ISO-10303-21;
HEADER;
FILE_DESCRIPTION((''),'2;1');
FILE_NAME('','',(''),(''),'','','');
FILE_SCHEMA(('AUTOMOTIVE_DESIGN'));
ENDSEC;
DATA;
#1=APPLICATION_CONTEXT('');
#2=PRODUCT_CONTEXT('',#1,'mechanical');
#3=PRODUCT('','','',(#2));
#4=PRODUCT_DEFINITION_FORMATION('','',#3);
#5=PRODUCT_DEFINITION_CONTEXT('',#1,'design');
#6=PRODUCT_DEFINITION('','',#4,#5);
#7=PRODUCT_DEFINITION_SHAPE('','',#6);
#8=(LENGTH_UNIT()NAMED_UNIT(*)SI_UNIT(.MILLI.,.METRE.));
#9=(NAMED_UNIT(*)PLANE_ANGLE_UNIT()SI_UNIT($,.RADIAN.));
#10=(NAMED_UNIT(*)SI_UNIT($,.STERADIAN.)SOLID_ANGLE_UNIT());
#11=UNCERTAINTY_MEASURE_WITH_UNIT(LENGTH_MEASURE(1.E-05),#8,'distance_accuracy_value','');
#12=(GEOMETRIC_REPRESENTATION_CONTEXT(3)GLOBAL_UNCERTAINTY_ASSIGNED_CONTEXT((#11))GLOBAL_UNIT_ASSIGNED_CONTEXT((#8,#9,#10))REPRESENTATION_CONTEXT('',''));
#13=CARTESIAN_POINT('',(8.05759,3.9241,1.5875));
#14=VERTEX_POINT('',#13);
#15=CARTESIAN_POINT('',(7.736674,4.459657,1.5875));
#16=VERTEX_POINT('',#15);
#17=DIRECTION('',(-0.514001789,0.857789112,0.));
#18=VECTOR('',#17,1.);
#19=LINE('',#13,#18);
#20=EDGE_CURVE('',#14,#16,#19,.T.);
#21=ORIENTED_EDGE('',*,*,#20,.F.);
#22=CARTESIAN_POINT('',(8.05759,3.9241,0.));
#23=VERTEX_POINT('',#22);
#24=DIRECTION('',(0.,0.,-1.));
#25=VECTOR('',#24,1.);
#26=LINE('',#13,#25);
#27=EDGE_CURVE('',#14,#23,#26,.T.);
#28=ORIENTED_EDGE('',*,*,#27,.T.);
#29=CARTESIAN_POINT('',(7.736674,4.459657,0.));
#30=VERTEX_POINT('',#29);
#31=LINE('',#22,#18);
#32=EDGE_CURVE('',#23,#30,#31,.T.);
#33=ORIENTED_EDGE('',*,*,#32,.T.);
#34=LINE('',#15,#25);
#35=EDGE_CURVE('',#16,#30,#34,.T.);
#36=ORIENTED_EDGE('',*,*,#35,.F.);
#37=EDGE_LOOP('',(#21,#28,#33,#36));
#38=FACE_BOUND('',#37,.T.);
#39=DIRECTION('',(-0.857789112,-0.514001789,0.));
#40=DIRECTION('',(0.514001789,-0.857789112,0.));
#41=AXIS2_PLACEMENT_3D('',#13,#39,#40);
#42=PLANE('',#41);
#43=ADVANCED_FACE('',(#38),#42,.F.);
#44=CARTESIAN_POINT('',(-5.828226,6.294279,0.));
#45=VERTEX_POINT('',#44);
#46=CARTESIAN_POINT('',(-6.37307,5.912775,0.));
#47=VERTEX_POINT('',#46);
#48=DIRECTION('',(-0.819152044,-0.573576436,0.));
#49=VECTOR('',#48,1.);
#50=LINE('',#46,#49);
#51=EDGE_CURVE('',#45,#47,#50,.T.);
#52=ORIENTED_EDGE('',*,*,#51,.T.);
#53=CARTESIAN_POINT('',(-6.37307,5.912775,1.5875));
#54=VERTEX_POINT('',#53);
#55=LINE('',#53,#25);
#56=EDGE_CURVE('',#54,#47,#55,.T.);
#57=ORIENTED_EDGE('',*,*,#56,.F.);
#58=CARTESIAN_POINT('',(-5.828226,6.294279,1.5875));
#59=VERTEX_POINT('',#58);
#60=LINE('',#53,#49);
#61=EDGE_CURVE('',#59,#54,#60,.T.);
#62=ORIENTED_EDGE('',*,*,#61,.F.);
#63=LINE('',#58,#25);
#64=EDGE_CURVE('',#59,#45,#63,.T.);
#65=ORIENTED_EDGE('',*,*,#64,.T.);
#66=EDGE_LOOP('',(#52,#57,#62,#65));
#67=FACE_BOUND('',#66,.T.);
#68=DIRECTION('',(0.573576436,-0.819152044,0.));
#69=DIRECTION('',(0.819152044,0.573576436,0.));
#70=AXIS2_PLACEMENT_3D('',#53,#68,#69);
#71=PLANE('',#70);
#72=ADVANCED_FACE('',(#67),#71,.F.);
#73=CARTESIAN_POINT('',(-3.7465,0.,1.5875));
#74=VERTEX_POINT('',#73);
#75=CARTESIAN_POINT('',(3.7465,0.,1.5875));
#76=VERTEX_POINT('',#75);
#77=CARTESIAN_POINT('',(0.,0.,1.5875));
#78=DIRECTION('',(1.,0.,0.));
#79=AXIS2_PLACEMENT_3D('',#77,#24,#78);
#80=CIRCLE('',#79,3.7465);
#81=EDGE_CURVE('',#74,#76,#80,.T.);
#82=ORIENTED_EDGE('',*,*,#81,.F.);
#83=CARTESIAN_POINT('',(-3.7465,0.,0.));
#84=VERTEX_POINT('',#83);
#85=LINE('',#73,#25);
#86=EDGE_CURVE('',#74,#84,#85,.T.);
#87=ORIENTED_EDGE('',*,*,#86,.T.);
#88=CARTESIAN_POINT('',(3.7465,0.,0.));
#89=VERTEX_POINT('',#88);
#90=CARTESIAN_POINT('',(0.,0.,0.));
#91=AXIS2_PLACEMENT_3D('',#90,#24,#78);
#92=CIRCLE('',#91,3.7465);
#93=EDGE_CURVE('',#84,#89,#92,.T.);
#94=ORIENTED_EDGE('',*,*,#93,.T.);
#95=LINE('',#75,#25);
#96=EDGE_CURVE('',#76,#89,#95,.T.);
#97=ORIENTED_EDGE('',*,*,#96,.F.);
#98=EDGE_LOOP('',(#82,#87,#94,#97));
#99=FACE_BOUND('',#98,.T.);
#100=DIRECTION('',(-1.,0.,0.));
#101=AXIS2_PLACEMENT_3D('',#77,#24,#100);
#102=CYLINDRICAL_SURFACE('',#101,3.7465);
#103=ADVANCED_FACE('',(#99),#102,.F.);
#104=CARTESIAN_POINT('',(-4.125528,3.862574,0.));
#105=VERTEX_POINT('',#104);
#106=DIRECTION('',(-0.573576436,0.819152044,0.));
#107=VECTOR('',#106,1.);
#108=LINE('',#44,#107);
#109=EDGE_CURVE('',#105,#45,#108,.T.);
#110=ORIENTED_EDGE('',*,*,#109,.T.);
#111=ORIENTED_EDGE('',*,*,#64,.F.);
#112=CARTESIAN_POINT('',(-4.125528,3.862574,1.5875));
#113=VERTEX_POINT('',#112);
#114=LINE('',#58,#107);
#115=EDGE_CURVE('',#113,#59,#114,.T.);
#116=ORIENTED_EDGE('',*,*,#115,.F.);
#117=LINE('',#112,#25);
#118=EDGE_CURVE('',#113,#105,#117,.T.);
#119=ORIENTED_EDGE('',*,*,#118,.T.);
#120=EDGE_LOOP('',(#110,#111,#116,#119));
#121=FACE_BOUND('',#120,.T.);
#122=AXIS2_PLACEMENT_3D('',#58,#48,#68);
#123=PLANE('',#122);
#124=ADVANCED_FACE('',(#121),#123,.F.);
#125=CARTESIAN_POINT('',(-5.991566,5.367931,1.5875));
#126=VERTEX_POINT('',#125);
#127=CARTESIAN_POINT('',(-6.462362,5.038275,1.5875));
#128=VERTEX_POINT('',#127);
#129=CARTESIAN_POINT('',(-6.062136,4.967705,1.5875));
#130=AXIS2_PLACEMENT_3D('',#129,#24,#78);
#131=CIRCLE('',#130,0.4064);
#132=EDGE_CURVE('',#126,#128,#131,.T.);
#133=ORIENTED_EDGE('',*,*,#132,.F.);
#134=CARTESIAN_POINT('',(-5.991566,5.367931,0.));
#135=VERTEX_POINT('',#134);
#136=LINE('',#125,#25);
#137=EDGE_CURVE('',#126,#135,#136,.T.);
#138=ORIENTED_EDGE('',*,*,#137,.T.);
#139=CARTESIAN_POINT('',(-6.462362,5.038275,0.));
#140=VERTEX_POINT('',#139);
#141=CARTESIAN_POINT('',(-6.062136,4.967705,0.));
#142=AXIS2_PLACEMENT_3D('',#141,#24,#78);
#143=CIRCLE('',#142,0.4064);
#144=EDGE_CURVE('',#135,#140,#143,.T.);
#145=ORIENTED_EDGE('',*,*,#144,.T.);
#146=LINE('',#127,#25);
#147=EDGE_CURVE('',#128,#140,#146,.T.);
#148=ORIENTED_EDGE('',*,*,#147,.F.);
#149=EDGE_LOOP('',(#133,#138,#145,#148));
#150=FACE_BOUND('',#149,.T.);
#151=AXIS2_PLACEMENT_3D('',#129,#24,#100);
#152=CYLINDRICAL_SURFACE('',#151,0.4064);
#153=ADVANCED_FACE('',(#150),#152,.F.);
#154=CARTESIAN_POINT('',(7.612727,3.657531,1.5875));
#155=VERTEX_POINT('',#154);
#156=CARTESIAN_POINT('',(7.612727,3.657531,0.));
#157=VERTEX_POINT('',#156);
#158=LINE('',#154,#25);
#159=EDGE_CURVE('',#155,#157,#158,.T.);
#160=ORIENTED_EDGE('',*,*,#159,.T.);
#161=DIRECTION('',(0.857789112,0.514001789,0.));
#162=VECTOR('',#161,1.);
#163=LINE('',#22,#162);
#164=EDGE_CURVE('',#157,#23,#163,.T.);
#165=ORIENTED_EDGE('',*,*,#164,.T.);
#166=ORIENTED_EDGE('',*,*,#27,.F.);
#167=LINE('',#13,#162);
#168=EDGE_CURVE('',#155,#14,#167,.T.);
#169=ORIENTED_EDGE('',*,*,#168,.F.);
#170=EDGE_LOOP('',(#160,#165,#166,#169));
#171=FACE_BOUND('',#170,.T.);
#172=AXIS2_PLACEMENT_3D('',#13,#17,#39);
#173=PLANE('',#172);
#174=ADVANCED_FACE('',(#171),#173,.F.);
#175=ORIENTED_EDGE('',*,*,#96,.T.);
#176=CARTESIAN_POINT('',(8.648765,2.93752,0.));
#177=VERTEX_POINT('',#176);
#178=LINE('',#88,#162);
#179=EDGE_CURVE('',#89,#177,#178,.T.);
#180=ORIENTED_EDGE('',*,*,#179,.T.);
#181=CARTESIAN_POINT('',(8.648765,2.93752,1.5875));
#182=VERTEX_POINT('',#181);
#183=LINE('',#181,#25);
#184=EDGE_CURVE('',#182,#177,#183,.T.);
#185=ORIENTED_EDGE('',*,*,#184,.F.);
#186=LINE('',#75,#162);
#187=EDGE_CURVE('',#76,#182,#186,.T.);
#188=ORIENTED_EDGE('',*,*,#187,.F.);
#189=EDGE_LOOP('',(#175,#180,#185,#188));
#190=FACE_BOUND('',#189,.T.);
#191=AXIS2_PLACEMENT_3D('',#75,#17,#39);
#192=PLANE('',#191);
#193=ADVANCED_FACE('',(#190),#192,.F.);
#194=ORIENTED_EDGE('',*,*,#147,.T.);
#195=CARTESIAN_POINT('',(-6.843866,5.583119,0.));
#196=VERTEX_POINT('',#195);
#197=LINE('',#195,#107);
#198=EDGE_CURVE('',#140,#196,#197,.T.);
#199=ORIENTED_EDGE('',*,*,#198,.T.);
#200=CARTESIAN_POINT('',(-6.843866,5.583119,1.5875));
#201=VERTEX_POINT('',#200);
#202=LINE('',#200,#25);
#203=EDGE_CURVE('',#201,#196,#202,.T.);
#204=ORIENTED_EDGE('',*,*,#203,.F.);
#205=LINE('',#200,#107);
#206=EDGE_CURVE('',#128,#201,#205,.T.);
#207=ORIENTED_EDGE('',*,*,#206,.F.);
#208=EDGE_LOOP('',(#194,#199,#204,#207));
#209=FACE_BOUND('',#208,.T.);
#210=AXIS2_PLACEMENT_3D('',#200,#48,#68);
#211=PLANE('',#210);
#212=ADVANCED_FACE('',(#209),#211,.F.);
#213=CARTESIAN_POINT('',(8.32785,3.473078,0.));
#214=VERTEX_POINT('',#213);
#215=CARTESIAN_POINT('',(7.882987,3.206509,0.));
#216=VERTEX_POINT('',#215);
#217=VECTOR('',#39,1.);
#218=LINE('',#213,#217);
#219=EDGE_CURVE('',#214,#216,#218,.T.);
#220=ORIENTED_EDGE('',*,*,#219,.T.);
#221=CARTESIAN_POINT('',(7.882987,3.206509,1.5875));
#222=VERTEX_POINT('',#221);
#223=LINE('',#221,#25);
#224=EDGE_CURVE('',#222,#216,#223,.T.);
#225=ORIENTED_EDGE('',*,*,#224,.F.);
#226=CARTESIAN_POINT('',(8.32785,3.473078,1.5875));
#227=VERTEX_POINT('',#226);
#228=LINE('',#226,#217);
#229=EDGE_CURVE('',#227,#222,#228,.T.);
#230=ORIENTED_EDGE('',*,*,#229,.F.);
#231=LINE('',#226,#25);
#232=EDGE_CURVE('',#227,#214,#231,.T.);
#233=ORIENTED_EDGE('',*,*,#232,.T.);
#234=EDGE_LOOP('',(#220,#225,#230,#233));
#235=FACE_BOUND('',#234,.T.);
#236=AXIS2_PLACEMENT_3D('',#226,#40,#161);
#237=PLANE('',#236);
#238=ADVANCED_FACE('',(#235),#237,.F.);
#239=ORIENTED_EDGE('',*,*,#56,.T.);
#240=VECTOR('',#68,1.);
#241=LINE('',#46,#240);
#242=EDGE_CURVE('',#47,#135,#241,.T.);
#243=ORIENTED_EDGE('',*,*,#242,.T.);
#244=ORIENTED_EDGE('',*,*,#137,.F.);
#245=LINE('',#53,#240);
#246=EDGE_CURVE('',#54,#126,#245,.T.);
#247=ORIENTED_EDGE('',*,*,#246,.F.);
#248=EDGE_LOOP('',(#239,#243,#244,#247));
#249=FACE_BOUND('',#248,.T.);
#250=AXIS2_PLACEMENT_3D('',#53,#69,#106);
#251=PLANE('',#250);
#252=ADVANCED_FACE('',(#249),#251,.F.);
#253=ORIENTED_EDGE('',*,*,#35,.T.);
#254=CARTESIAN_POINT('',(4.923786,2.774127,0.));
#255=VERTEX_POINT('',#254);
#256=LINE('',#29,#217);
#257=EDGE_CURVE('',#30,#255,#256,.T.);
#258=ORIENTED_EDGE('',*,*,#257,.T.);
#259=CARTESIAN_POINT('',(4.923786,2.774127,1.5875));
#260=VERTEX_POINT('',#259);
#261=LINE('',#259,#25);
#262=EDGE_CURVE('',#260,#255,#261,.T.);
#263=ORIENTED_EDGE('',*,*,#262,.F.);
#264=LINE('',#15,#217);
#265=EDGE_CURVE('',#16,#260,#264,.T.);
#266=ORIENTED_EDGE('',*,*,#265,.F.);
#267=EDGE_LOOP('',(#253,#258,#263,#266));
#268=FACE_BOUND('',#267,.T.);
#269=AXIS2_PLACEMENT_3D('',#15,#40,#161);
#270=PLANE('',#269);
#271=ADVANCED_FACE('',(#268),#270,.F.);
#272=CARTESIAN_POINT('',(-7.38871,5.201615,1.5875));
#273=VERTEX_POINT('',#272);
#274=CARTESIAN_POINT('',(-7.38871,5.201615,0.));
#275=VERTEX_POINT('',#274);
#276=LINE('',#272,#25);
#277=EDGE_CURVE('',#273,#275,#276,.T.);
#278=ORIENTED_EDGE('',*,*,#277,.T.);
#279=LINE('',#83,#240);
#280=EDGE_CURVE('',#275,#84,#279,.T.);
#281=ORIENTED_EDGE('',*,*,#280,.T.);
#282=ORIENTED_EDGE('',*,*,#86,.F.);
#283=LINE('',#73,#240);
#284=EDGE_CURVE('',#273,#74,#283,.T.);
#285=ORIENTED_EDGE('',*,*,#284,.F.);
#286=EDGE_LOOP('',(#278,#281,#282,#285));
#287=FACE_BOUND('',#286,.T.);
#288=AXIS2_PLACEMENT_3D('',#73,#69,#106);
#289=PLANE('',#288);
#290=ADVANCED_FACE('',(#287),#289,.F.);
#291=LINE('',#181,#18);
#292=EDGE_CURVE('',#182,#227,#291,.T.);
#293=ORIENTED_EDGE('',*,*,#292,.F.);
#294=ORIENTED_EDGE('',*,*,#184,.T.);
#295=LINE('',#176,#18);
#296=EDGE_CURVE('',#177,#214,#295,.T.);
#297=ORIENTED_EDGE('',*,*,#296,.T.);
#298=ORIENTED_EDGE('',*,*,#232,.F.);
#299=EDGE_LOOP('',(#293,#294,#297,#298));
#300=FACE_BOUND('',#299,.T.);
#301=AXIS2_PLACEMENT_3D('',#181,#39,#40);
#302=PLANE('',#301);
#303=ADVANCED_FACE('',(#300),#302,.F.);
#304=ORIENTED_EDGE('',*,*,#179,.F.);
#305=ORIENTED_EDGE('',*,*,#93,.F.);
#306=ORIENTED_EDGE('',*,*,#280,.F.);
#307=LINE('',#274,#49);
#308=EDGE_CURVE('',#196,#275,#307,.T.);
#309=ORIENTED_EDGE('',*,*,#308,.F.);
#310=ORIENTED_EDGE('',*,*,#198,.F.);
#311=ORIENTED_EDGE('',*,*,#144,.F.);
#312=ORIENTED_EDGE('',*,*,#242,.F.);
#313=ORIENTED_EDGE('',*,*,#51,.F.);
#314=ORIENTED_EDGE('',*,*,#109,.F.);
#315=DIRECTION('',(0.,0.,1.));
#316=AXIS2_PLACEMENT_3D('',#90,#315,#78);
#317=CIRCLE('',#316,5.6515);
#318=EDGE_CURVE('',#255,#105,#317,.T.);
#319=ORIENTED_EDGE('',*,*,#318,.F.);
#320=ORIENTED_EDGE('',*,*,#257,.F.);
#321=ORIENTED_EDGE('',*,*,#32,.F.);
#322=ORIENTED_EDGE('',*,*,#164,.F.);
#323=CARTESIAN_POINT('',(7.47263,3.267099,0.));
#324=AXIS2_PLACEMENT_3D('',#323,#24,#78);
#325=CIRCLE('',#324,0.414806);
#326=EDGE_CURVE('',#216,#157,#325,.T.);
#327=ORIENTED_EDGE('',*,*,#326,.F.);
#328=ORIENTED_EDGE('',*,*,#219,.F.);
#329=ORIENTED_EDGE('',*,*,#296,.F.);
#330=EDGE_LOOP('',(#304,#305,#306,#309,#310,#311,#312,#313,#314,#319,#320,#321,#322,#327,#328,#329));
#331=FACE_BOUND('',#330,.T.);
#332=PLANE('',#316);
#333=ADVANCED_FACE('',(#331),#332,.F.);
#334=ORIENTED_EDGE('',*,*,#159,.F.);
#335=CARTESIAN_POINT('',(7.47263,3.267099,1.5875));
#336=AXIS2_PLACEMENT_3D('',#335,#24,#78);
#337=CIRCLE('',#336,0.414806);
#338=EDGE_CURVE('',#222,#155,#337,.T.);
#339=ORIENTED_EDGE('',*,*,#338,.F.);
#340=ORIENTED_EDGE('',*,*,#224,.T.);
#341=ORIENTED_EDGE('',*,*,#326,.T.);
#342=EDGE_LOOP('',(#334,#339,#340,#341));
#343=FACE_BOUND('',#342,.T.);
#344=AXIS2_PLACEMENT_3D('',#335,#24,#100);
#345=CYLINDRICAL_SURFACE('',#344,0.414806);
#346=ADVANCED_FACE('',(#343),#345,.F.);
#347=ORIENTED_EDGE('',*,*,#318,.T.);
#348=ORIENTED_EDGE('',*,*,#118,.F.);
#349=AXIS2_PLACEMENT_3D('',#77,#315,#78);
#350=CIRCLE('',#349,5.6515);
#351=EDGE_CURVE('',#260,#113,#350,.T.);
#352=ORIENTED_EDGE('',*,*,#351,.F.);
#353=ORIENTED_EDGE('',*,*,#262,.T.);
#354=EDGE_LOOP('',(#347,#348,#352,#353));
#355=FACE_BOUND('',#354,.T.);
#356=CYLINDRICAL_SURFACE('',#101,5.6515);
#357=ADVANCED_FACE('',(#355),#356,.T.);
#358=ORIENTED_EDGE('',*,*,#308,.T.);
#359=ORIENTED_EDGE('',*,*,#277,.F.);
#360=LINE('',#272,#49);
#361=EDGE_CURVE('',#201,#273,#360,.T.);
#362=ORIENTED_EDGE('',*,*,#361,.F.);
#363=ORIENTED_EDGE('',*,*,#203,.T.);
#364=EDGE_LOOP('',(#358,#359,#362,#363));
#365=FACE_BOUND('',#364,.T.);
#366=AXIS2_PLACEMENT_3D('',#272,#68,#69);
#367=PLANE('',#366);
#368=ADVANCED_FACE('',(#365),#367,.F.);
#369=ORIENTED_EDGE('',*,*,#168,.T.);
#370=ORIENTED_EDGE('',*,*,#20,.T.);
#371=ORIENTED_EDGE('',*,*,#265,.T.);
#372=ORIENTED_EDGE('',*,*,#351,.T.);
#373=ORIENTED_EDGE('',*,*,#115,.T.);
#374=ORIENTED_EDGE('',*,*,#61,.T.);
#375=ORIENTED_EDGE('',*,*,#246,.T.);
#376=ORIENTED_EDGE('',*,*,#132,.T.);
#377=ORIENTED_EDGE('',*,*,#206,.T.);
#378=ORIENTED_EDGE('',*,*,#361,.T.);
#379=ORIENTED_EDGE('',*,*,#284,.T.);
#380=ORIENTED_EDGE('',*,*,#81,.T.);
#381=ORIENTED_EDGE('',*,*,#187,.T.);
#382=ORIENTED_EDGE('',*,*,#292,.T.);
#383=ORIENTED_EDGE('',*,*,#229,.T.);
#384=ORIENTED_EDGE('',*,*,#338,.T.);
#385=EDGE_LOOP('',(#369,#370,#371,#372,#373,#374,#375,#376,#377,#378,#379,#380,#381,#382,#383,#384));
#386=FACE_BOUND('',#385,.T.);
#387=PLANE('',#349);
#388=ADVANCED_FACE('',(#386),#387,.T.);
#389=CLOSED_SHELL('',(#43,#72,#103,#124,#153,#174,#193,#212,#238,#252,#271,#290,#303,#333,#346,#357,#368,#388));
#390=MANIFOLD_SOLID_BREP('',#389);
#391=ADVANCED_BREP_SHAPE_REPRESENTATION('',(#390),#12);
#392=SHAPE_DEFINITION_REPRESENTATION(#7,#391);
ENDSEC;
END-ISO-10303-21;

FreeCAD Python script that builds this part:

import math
import FreeCAD as App
import Part
import Sketcher
from FreeCAD import Vector
Q = App.Units.Quantity

doc = App.newDocument("Part")
body = doc.addObject("PartDesign::Body", "Body")

# Sketch on XY plane
sketch1 = body.newObject("Sketcher::SketchObject", "Sketch")
sketch1.AttachmentSupport = (doc.getObject("XY_Plane"), [""])
sketch1.MapMode = "FlatFace"
sketch1.addGeometry([
    Part.LineSegment(Vector(-7.39, 5.2, 0), Vector(-3.75, 0, 0)),  # 0
    Part.ArcOfCircle(Part.Circle(Vector(0, 0, 0), Vector(0, 0, 1), 3.75), math.radians(0), math.radians(180)),  # 1
    Part.LineSegment(Vector(3.75, 0, 0), Vector(8.65, 2.94, 0)),  # 2
    Part.LineSegment(Vector(8.65, 2.94, 0), Vector(8.33, 3.47, 0)),  # 3
    Part.LineSegment(Vector(8.33, 3.47, 0), Vector(7.88, 3.21, 0)),  # 4
    Part.ArcOfCircle(Part.Circle(Vector(7.47, 3.27, 0), Vector(0, 0, 1), 0.41), math.radians(70), math.radians(352)),  # 5
    Part.LineSegment(Vector(7.61, 3.66, 0), Vector(8.06, 3.92, 0)),  # 6
    Part.LineSegment(Vector(8.06, 3.92, 0), Vector(7.74, 4.46, 0)),  # 7
    Part.LineSegment(Vector(7.74, 4.46, 0), Vector(4.92, 2.77, 0)),  # 8
    Part.ArcOfCircle(Part.Circle(Vector(0, 0, 0), Vector(0, 0, 1), 5.65), math.radians(29), math.radians(137)),  # 9
    Part.LineSegment(Vector(-4.13, 3.86, 0), Vector(-5.83, 6.29, 0)),  # 10
    Part.LineSegment(Vector(-5.83, 6.29, 0), Vector(-6.37, 5.91, 0)),  # 11
    Part.LineSegment(Vector(-6.37, 5.91, 0), Vector(-5.99, 5.37, 0)),  # 12
    Part.ArcOfCircle(Part.Circle(Vector(-6.06, 4.97, 0), Vector(0, 0, 1), 0.41), math.radians(170), math.radians(440)),  # 13
    Part.LineSegment(Vector(-6.46, 5.04, 0), Vector(-6.84, 5.58, 0)),  # 14
    Part.LineSegment(Vector(-6.84, 5.58, 0), Vector(-7.39, 5.2, 0)),  # 15
], False)
sketch1.addConstraint([
    Sketcher.Constraint("Coincident", 0, 2, 1, 2),
    Sketcher.Constraint("Coincident", 1, 1, 2, 1),
    Sketcher.Constraint("Coincident", 2, 2, 3, 1),
    Sketcher.Constraint("Coincident", 3, 2, 4, 1),
    Sketcher.Constraint("Coincident", 4, 2, 5, 2),
    Sketcher.Constraint("Coincident", 5, 1, 6, 1),
    Sketcher.Constraint("Coincident", 6, 2, 7, 1),
    Sketcher.Constraint("Coincident", 7, 2, 8, 1),
    Sketcher.Constraint("Coincident", 8, 2, 9, 1),
    Sketcher.Constraint("Coincident", 9, 2, 10, 1),
    Sketcher.Constraint("Coincident", 10, 2, 11, 1),
    Sketcher.Constraint("Coincident", 11, 2, 12, 1),
    Sketcher.Constraint("Coincident", 12, 2, 13, 2),
    Sketcher.Constraint("Coincident", 13, 1, 14, 1),
    Sketcher.Constraint("Coincident", 14, 2, 15, 1),
    Sketcher.Constraint("Coincident", 15, 2, 0, 1),
    Sketcher.Constraint("Coincident", 1, 3, -1, 1),
    Sketcher.Constraint("Coincident", 9, 3, -1, 1),
    Sketcher.Constraint("PointOnObject", 0, 2, -1),
    Sketcher.Constraint("PointOnObject", 1, 1, -1),
    Sketcher.Constraint("Perpendicular", 2, 3),
    Sketcher.Constraint("Perpendicular", 3, 4),
    Sketcher.Constraint("Parallel", 4, 6),
    Sketcher.Constraint("Perpendicular", 6, 7),
    Sketcher.Constraint("Perpendicular", 7, 8),
    Sketcher.Constraint("Parallel", 0, 10),
    Sketcher.Constraint("Perpendicular", 10, 11),
    Sketcher.Constraint("Perpendicular", 11, 12),
    Sketcher.Constraint("Parallel", 12, 14),
    Sketcher.Constraint("Perpendicular", 14, 15),
    Sketcher.Constraint("Equal", 4, 6),
    Sketcher.Constraint("Equal", 3, 7),
    Sketcher.Constraint("Equal", 11, 12),
    Sketcher.Constraint("Equal", 12, 14),
    Sketcher.Constraint("Equal", 14, 15),
    Sketcher.Constraint("Angle", 0, Q("-55 deg")),
    Sketcher.Constraint("Radius", 13, Q("0.016 in")),
    Sketcher.Constraint("Radius", 1, Q("0.1475 in")),
    Sketcher.Constraint("Radius", 9, Q("0.2225 in")),
    Sketcher.Constraint("Distance", 0, Q("0.25 in")),
    Sketcher.Constraint("Distance", 2, Q("0.225 in")),
    Sketcher.Constraint("Radius", 5, Q("0.414806 mm")),
    Sketcher.Constraint("DistanceY", -1, 1, 5, 3, Q("3.267099 mm")),
    Sketcher.Constraint("DistanceY", -1, 1, 6, 2, Q("3.9241 mm")),
    Sketcher.Constraint("DistanceX", 8, 2, 4, 2, Q("2.959201 mm")),
    Sketcher.Constraint("DistanceX", 10, 2, 9, 2, Q("1.702698 mm")),
    Sketcher.Constraint("DistanceY", 9, 2, 11, 2, Q("2.050201 mm")),
    Sketcher.Constraint("DistanceY", 13, 1, 11, 2, Q("0.874499 mm")),
    Sketcher.Constraint("Distance", 8, Q("3.27923 mm")),
    Sketcher.Constraint("DistanceX", -1, 1, 5, 3, Q("7.47263 mm")),
])
pad1 = body.newObject("PartDesign::Pad", "Pad")
pad1.Profile = sketch1
pad1.Length = Q("0.0625 in")

doc.recompute()
